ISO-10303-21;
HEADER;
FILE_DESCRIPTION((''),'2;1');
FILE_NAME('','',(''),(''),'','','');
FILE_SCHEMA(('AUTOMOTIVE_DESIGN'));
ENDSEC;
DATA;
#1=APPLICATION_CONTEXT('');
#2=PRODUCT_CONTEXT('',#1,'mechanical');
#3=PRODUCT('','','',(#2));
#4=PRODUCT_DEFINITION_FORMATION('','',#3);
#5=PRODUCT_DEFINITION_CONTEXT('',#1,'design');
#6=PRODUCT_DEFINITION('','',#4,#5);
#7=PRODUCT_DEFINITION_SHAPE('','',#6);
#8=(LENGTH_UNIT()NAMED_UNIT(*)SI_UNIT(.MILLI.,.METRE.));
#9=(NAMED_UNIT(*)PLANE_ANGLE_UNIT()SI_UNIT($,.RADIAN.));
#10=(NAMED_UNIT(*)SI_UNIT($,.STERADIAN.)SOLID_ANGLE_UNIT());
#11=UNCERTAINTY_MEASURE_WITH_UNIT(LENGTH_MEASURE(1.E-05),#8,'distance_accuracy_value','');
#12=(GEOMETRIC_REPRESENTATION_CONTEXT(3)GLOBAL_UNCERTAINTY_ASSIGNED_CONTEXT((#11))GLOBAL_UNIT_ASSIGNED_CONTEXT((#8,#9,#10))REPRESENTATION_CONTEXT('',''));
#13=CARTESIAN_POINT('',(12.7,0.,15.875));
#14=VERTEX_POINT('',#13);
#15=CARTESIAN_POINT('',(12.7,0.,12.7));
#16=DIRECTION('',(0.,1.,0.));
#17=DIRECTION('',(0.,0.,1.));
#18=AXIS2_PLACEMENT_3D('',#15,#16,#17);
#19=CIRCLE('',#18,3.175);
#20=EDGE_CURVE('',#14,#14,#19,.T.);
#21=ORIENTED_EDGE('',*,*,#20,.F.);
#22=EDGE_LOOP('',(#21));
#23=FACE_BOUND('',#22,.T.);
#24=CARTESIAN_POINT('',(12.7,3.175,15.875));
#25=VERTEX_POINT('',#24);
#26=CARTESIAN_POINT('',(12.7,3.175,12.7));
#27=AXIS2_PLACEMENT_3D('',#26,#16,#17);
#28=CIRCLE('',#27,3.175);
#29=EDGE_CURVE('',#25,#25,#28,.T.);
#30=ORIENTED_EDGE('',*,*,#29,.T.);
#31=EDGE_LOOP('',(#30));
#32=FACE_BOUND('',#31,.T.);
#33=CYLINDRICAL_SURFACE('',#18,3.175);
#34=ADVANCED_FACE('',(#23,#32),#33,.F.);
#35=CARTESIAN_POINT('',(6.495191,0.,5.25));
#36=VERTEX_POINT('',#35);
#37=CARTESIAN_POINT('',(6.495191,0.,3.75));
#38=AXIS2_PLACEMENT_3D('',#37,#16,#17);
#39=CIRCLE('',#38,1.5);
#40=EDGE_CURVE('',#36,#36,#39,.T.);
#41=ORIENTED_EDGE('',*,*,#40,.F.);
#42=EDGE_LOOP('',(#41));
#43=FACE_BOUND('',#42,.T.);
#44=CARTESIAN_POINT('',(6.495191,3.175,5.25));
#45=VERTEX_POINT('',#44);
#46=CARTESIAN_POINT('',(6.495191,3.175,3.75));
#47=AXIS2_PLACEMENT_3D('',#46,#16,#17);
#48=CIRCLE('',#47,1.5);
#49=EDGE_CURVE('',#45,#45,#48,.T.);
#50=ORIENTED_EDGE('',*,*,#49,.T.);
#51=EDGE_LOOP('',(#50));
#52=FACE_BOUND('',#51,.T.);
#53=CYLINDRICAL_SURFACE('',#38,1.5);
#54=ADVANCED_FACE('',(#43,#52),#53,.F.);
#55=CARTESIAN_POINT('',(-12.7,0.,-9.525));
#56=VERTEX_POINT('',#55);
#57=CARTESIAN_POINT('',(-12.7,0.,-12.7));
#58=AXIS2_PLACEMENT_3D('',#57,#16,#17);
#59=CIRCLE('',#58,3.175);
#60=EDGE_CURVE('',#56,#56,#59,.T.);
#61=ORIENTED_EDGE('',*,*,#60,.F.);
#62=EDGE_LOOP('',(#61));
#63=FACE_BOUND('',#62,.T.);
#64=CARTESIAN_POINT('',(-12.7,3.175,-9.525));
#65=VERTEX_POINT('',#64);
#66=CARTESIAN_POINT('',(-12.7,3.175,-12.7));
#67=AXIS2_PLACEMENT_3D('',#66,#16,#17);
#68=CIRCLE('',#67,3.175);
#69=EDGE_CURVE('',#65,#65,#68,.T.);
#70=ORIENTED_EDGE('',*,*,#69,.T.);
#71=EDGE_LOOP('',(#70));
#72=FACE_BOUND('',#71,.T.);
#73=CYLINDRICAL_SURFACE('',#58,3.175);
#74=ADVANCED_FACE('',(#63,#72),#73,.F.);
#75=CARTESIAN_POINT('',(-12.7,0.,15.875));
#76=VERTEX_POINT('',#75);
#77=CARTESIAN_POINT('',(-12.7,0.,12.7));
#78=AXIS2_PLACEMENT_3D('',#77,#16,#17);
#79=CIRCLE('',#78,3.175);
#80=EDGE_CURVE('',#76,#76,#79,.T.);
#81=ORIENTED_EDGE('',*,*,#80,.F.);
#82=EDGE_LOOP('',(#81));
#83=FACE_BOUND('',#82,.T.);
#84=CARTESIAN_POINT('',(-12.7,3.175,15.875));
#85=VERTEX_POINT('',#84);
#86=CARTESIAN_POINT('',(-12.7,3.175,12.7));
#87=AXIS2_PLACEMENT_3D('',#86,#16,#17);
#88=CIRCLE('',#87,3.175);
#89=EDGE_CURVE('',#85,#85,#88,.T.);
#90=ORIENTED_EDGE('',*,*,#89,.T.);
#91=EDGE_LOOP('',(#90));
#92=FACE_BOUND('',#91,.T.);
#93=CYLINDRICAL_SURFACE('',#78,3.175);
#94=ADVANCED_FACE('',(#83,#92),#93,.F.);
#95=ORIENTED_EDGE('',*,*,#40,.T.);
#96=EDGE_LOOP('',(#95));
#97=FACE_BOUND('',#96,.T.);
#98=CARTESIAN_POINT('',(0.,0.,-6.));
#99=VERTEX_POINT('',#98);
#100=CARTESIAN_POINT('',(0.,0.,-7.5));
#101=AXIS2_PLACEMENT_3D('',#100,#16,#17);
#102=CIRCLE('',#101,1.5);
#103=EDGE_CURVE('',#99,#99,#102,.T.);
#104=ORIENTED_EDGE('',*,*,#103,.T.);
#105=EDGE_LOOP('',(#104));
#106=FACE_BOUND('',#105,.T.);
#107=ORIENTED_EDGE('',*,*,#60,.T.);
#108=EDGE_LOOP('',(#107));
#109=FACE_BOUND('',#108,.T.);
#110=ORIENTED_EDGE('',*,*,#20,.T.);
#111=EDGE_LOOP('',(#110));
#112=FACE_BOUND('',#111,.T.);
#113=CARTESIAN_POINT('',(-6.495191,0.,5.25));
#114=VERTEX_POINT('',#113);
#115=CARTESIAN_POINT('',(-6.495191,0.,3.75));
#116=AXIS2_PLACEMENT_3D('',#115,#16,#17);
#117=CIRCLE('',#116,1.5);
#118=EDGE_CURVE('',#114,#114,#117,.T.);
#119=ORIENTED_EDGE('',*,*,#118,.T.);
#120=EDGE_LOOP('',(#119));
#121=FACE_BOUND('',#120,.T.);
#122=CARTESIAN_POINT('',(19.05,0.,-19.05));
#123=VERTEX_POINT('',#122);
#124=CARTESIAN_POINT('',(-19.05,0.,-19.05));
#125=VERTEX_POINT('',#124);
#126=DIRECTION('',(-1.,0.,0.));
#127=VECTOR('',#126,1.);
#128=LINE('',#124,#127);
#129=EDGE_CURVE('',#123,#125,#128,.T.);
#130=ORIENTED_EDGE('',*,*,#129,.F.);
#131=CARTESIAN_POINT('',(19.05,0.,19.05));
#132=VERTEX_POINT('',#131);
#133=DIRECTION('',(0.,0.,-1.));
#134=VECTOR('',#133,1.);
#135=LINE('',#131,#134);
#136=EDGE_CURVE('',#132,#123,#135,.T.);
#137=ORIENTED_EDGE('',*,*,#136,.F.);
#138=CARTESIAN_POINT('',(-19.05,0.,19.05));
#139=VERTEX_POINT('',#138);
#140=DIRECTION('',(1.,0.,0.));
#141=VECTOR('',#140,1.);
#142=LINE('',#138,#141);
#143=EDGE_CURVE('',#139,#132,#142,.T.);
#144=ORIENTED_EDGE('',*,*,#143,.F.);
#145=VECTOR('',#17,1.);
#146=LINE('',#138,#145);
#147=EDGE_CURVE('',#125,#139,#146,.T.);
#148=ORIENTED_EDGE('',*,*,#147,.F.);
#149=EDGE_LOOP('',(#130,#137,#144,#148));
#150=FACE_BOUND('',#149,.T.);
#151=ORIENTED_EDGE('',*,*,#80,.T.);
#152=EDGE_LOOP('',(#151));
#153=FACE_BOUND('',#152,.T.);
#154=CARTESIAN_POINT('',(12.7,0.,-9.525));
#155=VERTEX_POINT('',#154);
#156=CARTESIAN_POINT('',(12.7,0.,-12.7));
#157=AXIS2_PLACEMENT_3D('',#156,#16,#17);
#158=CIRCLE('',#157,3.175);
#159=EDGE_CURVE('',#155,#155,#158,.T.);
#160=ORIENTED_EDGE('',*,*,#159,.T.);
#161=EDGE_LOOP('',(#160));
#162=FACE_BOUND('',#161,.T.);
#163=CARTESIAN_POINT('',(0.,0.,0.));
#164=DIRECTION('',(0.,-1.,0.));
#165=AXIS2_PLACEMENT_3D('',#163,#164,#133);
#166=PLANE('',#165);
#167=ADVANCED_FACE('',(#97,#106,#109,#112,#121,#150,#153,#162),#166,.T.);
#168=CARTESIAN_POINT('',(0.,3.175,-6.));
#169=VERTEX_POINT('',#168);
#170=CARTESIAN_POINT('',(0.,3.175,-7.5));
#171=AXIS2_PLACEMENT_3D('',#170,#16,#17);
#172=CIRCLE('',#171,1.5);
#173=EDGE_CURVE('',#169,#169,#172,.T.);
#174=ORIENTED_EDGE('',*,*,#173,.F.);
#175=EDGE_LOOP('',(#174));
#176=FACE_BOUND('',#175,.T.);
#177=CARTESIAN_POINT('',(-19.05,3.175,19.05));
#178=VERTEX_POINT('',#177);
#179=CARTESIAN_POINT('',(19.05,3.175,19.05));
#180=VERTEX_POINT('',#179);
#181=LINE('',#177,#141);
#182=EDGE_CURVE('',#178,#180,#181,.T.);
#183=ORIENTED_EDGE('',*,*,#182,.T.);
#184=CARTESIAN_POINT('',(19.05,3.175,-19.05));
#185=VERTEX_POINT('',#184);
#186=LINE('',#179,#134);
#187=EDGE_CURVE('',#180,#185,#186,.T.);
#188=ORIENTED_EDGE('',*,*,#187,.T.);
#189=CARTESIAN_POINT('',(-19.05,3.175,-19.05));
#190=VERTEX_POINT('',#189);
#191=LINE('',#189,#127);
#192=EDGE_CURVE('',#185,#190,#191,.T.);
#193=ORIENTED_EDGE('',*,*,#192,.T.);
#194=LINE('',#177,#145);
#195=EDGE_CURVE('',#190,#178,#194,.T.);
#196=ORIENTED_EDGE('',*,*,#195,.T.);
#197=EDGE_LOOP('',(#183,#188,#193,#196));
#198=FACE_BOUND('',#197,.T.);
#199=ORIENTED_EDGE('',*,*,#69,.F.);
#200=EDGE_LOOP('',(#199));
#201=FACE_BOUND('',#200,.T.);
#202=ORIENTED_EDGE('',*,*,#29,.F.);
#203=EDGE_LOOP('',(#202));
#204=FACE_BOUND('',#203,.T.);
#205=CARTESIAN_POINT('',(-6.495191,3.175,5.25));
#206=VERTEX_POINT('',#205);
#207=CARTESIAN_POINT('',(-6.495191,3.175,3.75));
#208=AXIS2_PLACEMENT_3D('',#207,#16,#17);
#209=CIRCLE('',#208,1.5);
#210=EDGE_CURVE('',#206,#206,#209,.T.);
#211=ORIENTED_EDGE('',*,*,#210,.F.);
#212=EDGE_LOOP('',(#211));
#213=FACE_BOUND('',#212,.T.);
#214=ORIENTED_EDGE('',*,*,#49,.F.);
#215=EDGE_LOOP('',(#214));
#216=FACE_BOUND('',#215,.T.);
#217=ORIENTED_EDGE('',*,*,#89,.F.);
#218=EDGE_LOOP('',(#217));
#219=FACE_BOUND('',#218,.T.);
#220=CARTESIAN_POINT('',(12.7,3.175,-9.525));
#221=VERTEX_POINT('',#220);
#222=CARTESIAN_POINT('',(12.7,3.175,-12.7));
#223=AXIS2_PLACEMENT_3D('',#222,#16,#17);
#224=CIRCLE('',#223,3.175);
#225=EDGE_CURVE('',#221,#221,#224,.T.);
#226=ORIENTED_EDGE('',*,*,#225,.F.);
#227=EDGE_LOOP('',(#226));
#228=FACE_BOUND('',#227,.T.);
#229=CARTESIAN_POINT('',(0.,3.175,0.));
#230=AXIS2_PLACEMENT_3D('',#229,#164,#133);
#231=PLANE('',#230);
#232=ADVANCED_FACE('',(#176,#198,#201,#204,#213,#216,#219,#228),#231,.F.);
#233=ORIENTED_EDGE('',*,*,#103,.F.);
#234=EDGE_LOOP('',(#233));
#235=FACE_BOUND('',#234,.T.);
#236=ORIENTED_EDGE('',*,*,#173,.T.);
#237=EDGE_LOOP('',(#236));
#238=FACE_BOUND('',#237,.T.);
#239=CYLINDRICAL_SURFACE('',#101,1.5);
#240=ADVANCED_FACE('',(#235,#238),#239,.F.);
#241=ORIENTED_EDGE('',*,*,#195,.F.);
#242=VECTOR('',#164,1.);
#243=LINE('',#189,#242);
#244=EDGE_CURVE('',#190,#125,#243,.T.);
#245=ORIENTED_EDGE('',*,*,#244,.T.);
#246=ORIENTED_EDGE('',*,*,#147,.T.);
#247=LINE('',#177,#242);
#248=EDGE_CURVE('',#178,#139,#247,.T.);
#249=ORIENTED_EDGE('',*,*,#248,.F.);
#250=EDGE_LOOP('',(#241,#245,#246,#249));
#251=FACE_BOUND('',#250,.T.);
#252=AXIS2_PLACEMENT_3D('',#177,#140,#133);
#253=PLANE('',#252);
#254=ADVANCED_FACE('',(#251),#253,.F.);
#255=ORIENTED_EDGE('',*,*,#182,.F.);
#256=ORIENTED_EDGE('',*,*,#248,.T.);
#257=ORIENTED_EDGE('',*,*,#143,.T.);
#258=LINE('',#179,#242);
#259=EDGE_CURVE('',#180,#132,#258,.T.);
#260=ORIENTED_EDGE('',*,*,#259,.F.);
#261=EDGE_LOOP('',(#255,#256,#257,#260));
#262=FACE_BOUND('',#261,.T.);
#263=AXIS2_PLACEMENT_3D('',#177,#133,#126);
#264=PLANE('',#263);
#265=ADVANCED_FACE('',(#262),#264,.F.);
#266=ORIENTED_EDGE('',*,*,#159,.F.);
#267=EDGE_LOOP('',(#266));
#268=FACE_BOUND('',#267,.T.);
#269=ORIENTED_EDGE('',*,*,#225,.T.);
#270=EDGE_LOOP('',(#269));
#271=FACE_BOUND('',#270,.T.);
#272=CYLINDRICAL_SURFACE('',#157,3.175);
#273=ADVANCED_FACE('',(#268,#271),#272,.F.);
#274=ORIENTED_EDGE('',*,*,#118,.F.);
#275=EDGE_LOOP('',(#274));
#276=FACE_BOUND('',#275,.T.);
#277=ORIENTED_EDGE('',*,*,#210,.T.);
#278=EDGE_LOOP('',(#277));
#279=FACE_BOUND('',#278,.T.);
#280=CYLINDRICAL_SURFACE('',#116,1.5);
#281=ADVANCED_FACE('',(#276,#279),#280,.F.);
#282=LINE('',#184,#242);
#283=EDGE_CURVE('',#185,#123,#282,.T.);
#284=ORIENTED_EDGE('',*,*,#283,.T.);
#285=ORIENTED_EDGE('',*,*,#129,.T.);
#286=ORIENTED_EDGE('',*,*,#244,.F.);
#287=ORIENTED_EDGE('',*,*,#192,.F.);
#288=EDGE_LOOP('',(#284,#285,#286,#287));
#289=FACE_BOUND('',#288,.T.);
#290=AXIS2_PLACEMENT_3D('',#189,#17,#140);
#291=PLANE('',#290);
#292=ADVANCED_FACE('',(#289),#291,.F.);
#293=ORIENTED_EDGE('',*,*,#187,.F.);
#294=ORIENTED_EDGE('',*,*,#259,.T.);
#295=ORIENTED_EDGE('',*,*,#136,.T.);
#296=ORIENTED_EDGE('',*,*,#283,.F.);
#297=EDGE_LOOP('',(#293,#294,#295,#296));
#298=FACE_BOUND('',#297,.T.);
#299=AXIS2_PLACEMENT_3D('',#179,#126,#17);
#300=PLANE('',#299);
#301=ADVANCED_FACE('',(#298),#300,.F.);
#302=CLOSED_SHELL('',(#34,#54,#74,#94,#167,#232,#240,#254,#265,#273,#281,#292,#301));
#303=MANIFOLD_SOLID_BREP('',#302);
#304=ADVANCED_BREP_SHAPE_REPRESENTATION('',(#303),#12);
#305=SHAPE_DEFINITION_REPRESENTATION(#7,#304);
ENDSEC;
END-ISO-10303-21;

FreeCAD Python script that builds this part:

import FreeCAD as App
import Part
import Sketcher

V = App.Vector
Q = App.Units.Quantity


def add_polygon(sketch, points):
    """Adds a closed chain of lines whose ends are joined by coincident constraints."""
    first, n = sketch.GeometryCount, len(points)
    for a, b in zip(points, points[1:] + points[:1]):
        sketch.addGeometry(Part.LineSegment(App.Vector(*a, 0), App.Vector(*b, 0)), False)
    for i in range(n):
        sketch.addConstraint(Sketcher.Constraint("Coincident", first + i, 2, first + (i + 1) % n, 1))

doc = App.newDocument("Part")
body = doc.addObject("PartDesign::Body", "Body")

# Sketch on XZ plane
sketch1 = body.newObject("Sketcher::SketchObject", "Sketch")
sketch1.AttachmentSupport = (doc.getObject("XZ_Plane"), [""])
sketch1.MapMode = "FlatFace"
add_polygon(sketch1, [(-19, -19), (-19, 19), (19, 19), (19, -19)])  # lines 0-3
sketch1.addConstraint([
    Sketcher.Constraint("Vertical", 0),
    Sketcher.Constraint("Horizontal", 1),
    Sketcher.Constraint("Vertical", 2),
    Sketcher.Constraint("Horizontal", 3),
    Sketcher.Constraint("Symmetric", 0, 2, 2, 2, -1, 1),
    Sketcher.Constraint("Equal", 3, 0),
    Sketcher.Constraint("DistanceX", 1, 1, 1, 2, Q("1.5 in")),
])
pad1 = body.newObject("PartDesign::Pad", "Pad")
pad1.Profile = sketch1
pad1.Length = Q("0.125 in")
pad1.Reversed = True

# Sketch on XZ plane
sketch2 = body.newObject("Sketcher::SketchObject", "Sketch001")
sketch2.AttachmentSupport = (doc.getObject("XZ_Plane"), [""])
sketch2.MapMode = "FlatFace"
sketch2.AttachmentOffset = App.Placement(V(0, 0, -0.125 * 25.4), App.Rotation())
sketch2.addGeometry([
    Part.Circle(V(0, -7.5, 0), V(0, 0, 1), 1.5),
    Part.Circle(V(6.5, 3.8, 0), V(0, 0, 1), 1.5),
    Part.Circle(V(-6.5, 3.8, 0), V(0, 0, 1), 1.5),
], False)
sketch2.addConstraint([
    Sketcher.Constraint("Equal", 0, 1),
    Sketcher.Constraint("Equal", 1, 2),
    Sketcher.Constraint("Symmetric", 1, 3, 2, 3, -2),
    Sketcher.Constraint("PointOnObject", 0, 3, -2),
    Sketcher.Constraint("Diameter", 0, 3.0),
    Sketcher.Constraint("DistanceY", 0, 3, -1, 1, 7.5),
    Sketcher.Constraint("DistanceY", -1, 1, 1, 3, 3.75),
    Sketcher.Constraint("DistanceX", -1, 1, 1, 3, 6.495191),
])
pocket1 = body.newObject("PartDesign::Pocket", "Pocket")
pocket1.Profile = sketch2
pocket1.Type = "ThroughAll"
pocket1.Reversed = True

# Sketch on XZ plane
sketch3 = body.newObject("Sketcher::SketchObject", "Sketch002")
sketch3.AttachmentSupport = (doc.getObject("XZ_Plane"), [""])
sketch3.MapMode = "FlatFace"
sketch3.AttachmentOffset = App.Placement(V(0, 0, -0.125 * 25.4), App.Rotation())
sketch3.addGeometry([
    Part.Circle(V(-12.7, -12.7, 0), V(0, 0, 1), 3.2),
    Part.Circle(V(-12.7, 12.7, 0), V(0, 0, 1), 3.2),
    Part.Circle(V(12.7, 12.7, 0), V(0, 0, 1), 3.2),
    Part.Circle(V(12.7, -12.7, 0), V(0, 0, 1), 3.2),
], False)
sketch3.addConstraint([
    Sketcher.Constraint("Equal", 0, 1),
    Sketcher.Constraint("Equal", 1, 2),
    Sketcher.Constraint("Equal", 2, 3),
    Sketcher.Constraint("Symmetric", 0, 3, 2, 3, -1, 1),
    Sketcher.Constraint("Symmetric", 1, 3, 3, 3, -1, 1),
    Sketcher.Constraint("Symmetric", 1, 3, 2, 3, -2),
    Sketcher.Constraint("Diameter", 0, Q("0.25 in")),
    Sketcher.Constraint("DistanceY", 0, 3, 1, 3, Q("1 in")),
    Sketcher.Constraint("DistanceX", 1, 3, 2, 3, Q("1 in")),
])
pocket2 = body.newObject("PartDesign::Pocket", "Pocket001")
pocket2.Profile = sketch3
pocket2.Type = "ThroughAll"
pocket2.Reversed = True

doc.recompute()
